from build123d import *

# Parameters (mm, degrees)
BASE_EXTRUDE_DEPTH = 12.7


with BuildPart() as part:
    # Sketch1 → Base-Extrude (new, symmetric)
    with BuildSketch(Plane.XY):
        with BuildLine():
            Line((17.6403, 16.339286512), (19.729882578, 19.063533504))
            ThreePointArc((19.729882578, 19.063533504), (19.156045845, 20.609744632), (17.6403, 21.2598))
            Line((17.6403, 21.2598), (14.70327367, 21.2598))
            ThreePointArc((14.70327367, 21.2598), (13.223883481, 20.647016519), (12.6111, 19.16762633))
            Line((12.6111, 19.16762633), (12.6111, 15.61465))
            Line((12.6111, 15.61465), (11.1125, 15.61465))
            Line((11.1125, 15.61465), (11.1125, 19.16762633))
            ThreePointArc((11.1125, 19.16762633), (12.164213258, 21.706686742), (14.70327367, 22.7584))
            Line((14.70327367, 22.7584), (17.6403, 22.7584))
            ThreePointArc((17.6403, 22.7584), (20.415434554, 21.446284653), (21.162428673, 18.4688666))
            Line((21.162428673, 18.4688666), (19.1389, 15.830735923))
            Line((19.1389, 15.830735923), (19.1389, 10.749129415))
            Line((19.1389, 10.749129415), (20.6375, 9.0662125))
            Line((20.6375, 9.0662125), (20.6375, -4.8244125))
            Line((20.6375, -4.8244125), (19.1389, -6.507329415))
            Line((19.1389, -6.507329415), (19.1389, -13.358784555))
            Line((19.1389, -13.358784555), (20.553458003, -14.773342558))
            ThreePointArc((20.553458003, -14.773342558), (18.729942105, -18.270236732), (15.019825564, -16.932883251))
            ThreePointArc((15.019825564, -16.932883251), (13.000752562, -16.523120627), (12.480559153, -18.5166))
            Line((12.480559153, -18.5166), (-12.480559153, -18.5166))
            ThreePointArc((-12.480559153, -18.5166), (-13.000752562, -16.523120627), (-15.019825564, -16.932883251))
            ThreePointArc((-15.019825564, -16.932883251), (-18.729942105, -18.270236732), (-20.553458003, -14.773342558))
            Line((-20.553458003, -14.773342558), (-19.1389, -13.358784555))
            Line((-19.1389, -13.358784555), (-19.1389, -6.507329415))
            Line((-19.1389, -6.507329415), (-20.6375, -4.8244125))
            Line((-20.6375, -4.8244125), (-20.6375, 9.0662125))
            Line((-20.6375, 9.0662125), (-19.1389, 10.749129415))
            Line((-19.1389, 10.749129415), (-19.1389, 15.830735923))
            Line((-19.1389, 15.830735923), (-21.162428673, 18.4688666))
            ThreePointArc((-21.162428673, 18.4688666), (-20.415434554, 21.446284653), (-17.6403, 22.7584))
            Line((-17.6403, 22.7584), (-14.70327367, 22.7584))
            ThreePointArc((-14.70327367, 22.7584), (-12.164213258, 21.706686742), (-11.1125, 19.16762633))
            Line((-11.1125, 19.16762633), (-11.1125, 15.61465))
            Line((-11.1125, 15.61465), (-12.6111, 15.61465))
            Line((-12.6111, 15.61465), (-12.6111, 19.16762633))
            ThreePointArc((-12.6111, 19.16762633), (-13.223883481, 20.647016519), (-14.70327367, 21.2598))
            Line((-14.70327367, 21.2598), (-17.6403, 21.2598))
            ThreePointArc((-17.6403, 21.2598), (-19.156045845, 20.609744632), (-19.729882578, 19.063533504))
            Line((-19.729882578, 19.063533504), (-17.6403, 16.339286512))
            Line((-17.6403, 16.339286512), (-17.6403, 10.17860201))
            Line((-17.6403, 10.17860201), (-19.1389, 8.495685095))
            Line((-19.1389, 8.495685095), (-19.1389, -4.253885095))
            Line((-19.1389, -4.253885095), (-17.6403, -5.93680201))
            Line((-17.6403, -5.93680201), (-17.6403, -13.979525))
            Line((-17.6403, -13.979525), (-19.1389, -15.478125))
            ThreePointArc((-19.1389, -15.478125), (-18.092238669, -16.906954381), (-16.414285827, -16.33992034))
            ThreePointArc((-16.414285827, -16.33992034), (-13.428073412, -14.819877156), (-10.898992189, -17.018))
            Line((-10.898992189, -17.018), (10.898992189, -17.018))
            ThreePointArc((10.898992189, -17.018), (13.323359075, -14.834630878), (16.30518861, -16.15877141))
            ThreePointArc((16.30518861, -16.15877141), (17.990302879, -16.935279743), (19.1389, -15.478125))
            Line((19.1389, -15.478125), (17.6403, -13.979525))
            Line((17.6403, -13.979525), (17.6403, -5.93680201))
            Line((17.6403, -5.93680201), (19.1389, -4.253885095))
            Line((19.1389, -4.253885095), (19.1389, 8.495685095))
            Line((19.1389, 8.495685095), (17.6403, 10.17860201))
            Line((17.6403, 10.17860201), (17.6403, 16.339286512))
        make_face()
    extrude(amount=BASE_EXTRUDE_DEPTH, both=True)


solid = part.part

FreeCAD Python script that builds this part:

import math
import FreeCAD as App
import Part
import Sketcher

V = App.Vector
Q = App.Units.Quantity

doc = App.newDocument("Part")
body = doc.addObject("PartDesign::Body", "Body")

# Sketch on XY plane
sketch1 = body.newObject("Sketcher::SketchObject", "Sketch")
sketch1.AttachmentSupport = (doc.getObject("XY_Plane"), [""])
sketch1.MapMode = "FlatFace"
sketch1.addGeometry(Part.LineSegment(V(19.7, 19.1, 0), V(17.6, 16.3, 0)), False)
sketch1.addGeometry(Part.LineSegment(V(17.6, 16.3, 0), V(17.6, 10.2, 0)), False)
sketch1.addGeometry(Part.LineSegment(V(17.6, 10.2, 0), V(19.1, 8.5, 0)), False)
sketch1.addGeometry(Part.LineSegment(V(19.1, 8.5, 0), V(19.1, -4.3, 0)), False)
sketch1.addGeometry(Part.LineSegment(V(19.1, -4.3, 0), V(17.6, -5.9, 0)), False)
sketch1.addGeometry(Part.LineSegment(V(17.6, -5.9, 0), V(17.6, -14, 0)), False)
sketch1.addGeometry(Part.LineSegment(V(17.6, -14, 0), V(19.1, -15.5, 0)), False)
sketch1.addGeometry(Part.ArcOfCircle(Part.Circle(V(17.6, -15.5, 0), V(0, 0, 1), 1.5), math.radians(-153), math.radians(0)), False)
sketch1.addGeometry(Part.ArcOfCircle(Part.Circle(V(13.8, -17.8, 0), V(0, 0, 1), 3), math.radians(33), math.radians(165)), False)
sketch1.addGeometry(Part.LineSegment(V(10.9, -17, 0), V(-10.9, -17, 0)), False)
sketch1.addGeometry(Part.ArcOfCircle(Part.Circle(V(-13.8, -17.8, 0), V(0, 0, 1), 3), math.radians(15), math.radians(151)), False)
sketch1.addGeometry(Part.ArcOfCircle(Part.Circle(V(-17.6, -15.5, 0), V(0, 0, 1), 1.5), math.radians(180), math.radians(325)), False)
sketch1.addGeometry(Part.LineSegment(V(-19.1, -15.5, 0), V(-17.6, -14, 0)), False)
sketch1.addGeometry(Part.LineSegment(V(-17.6, -14, 0), V(-17.6, -5.9, 0)), False)
sketch1.addGeometry(Part.LineSegment(V(-17.6, -5.9, 0), V(-19.1, -4.3, 0)), False)
sketch1.addGeometry(Part.LineSegment(V(-19.1, -4.3, 0), V(-19.1, 8.5, 0)), False)
sketch1.addGeometry(Part.LineSegment(V(-19.1, 8.5, 0), V(-17.6, 10.2, 0)), False)
sketch1.addGeometry(Part.LineSegment(V(-17.6, 10.2, 0), V(-17.6, 16.3, 0)), False)
sketch1.addGeometry(Part.LineSegment(V(-17.6, 16.3, 0), V(-19.7, 19.1, 0)), False)
sketch1.addGeometry(Part.ArcOfCircle(Part.Circle(V(-17.6, 19.2, 0), V(0, 0, 1), 2.1), math.radians(90), math.radians(183)), False)
sketch1.addGeometry(Part.LineSegment(V(-17.6, 21.3, 0), V(-14.7, 21.3, 0)), False)
sketch1.addGeometry(Part.ArcOfCircle(Part.Circle(V(-14.7, 19.2, 0), V(0, 0, 1), 2.1), math.radians(0), math.radians(90)), False)
sketch1.addGeometry(Part.LineSegment(V(-12.6, 19.2, 0), V(-12.6, 15.6, 0)), False)
sketch1.addGeometry(Part.LineSegment(V(-12.6, 15.6, 0), V(-11.1, 15.6, 0)), False)
sketch1.addGeometry(Part.LineSegment(V(-11.1, 15.6, 0), V(-11.1, 19.2, 0)), False)
sketch1.addGeometry(Part.ArcOfCircle(Part.Circle(V(-14.7, 19.2, 0), V(0, 0, 1), 3.6), math.radians(0), math.radians(90)), False)
sketch1.addGeometry(Part.LineSegment(V(-14.7, 22.8, 0), V(-17.6, 22.8, 0)), False)
sketch1.addGeometry(Part.ArcOfCircle(Part.Circle(V(-17.6, 19.2, 0), V(0, 0, 1), 3.6), math.radians(90), math.radians(191)), False)
sketch1.addGeometry(Part.LineSegment(V(-21.2, 18.5, 0), V(-19.1, 15.8, 0)), False)
sketch1.addGeometry(Part.LineSegment(V(-19.1, 15.8, 0), V(-19.1, 10.7, 0)), False)
sketch1.addGeometry(Part.LineSegment(V(-19.1, 10.7, 0), V(-20.6, 9.1, 0)), False)
sketch1.addGeometry(Part.LineSegment(V(-20.6, 9.1, 0), V(-20.6, -4.8, 0)), False)
sketch1.addGeometry(Part.LineSegment(V(-20.6, -4.8, 0), V(-19.1, -6.5, 0)), False)
sketch1.addGeometry(Part.LineSegment(V(-19.1, -6.5, 0), V(-19.1, -13.4, 0)), False)
sketch1.addGeometry(Part.LineSegment(V(-19.1, -13.4, 0), V(-20.6, -14.8, 0)), False)
sketch1.addGeometry(Part.ArcOfCircle(Part.Circle(V(-17.6, -15.5, 0), V(0, 0, 1), 3), math.radians(166), math.radians(331)), False)
sketch1.addGeometry(Part.ArcOfCircle(Part.Circle(V(-13.8, -17.8, 0), V(0, 0, 1), 1.5), math.radians(-29), math.radians(145)), False)
sketch1.addGeometry(Part.LineSegment(V(-12.5, -18.5, 0), V(12.5, -18.5, 0)), False)
sketch1.addGeometry(Part.ArcOfCircle(Part.Circle(V(13.8, -17.8, 0), V(0, 0, 1), 1.5), math.radians(35), math.radians(209)), False)
sketch1.addGeometry(Part.ArcOfCircle(Part.Circle(V(17.6, -15.5, 0), V(0, 0, 1), 3), math.radians(-151), math.radians(14)), False)
sketch1.addGeometry(Part.LineSegment(V(20.6, -14.8, 0), V(19.1, -13.4, 0)), False)
sketch1.addGeometry(Part.LineSegment(V(19.1, -13.4, 0), V(19.1, -6.5, 0)), False)
sketch1.addGeometry(Part.LineSegment(V(19.1, -6.5, 0), V(20.6, -4.8, 0)), False)
sketch1.addGeometry(Part.LineSegment(V(20.6, -4.8, 0), V(20.6, 9.1, 0)), False)
sketch1.addGeometry(Part.LineSegment(V(20.6, 9.1, 0), V(19.1, 10.7, 0)), False)
sketch1.addGeometry(Part.LineSegment(V(19.1, 10.7, 0), V(19.1, 15.8, 0)), False)
sketch1.addGeometry(Part.LineSegment(V(19.1, 15.8, 0), V(21.2, 18.5, 0)), False)
sketch1.addGeometry(Part.ArcOfCircle(Part.Circle(V(17.6, 19.2, 0), V(0, 0, 1), 3.6), math.radians(-11), math.radians(90)), False)
sketch1.addGeometry(Part.LineSegment(V(17.6, 22.8, 0), V(14.7, 22.8, 0)), False)
sketch1.addGeometry(Part.ArcOfCircle(Part.Circle(V(14.7, 19.2, 0), V(0, 0, 1), 3.6), math.radians(90), math.radians(180)), False)
sketch1.addGeometry(Part.LineSegment(V(11.1, 19.2, 0), V(11.1, 15.6, 0)), False)
sketch1.addGeometry(Part.LineSegment(V(11.1, 15.6, 0), V(12.6, 15.6, 0)), False)
sketch1.addGeometry(Part.LineSegment(V(12.6, 15.6, 0), V(12.6, 19.2, 0)), False)
sketch1.addGeometry(Part.ArcOfCircle(Part.Circle(V(14.7, 19.2, 0), V(0, 0, 1), 2.1), math.radians(90), math.radians(180)), False)
sketch1.addGeometry(Part.LineSegment(V(14.7, 21.3, 0), V(17.6, 21.3, 0)), False)
sketch1.addGeometry(Part.ArcOfCircle(Part.Circle(V(17.6, 19.2, 0), V(0, 0, 1), 2.1), math.radians(-3), math.radians(90)), False)
sketch1.addConstraint(Sketcher.Constraint("Coincident", 0, 2, 1, 1))
sketch1.addConstraint(Sketcher.Constraint("Coincident", 1, 2, 2, 1))
sketch1.addConstraint(Sketcher.Constraint("Coincident", 2, 2, 3, 1))
sketch1.addConstraint(Sketcher.Constraint("Coincident", 3, 2, 4, 1))
sketch1.addConstraint(Sketcher.Constraint("Coincident", 4, 2, 5, 1))
sketch1.addConstraint(Sketcher.Constraint("Coincident", 5, 2, 6, 1))
sketch1.addConstraint(Sketcher.Constraint("Coincident", 6, 2, 7, 2))
sketch1.addConstraint(Sketcher.Constraint("Coincident", 7, 1, 8, 1))
sketch1.addConstraint(Sketcher.Constraint("Coincident", 8, 2, 9, 1))
sketch1.addConstraint(Sketcher.Constraint("Coincident", 9, 2, 10, 1))
sketch1.addConstraint(Sketcher.Constraint("Coincident", 10, 2, 11, 2))
sketch1.addConstraint(Sketcher.Constraint("Coincident", 11, 1, 12, 1))
sketch1.addConstraint(Sketcher.Constraint("Coincident", 12, 2, 13, 1))
sketch1.addConstraint(Sketcher.Constraint("Coincident", 13, 2, 14, 1))
sketch1.addConstraint(Sketcher.Constraint("Coincident", 14, 2, 15, 1))
sketch1.addConstraint(Sketcher.Constraint("Coincident", 15, 2, 16, 1))
sketch1.addConstraint(Sketcher.Constraint("Coincident", 16, 2, 17, 1))
sketch1.addConstraint(Sketcher.Constraint("Coincident", 17, 2, 18, 1))
sketch1.addConstraint(Sketcher.Constraint("Coincident", 18, 2, 19, 2))
sketch1.addConstraint(Sketcher.Constraint("Tangent", 19, 1, 20, 1))
sketch1.addConstraint(Sketcher.Constraint("Tangent", 20, 2, 21, 2))
sketch1.addConstraint(Sketcher.Constraint("Tangent", 21, 1, 22, 1))
sketch1.addConstraint(Sketcher.Constraint("Coincident", 22, 2, 23, 1))
sketch1.addConstraint(Sketcher.Constraint("Coincident", 23, 2, 24, 1))
sketch1.addConstraint(Sketcher.Constraint("Tangent", 24, 2, 25, 1))
sketch1.addConstraint(Sketcher.Constraint("Tangent", 25, 2, 26, 1))
sketch1.addConstraint(Sketcher.Constraint("Tangent", 26, 2, 27, 1))
sketch1.addConstraint(Sketcher.Constraint("Coincident", 27, 2, 28, 1))
sketch1.addConstraint(Sketcher.Constraint("Coincident", 28, 2, 29, 1))
sketch1.addConstraint(Sketcher.Constraint("Coincident", 29, 2, 30, 1))
sketch1.addConstraint(Sketcher.Constraint("Coincident", 30, 2, 31, 1))
sketch1.addConstraint(Sketcher.Constraint("Coincident", 31, 2, 32, 1))
sketch1.addConstraint(Sketcher.Constraint("Coincident", 32, 2, 33, 1))
sketch1.addConstraint(Sketcher.Constraint("Coincident", 33, 2, 34, 1))
sketch1.addConstraint(Sketcher.Constraint("Coincident", 34, 2, 35, 1))
sketch1.addConstraint(Sketcher.Constraint("Coincident", 35, 2, 36, 2))
sketch1.addConstraint(Sketcher.Constraint("Coincident", 36, 1, 37, 1))
sketch1.addConstraint(Sketcher.Constraint("Coincident", 37, 2, 38, 2))
sketch1.addConstraint(Sketcher.Constraint("Coincident", 38, 1, 39, 1))
sketch1.addConstraint(Sketcher.Constraint("Coincident", 39, 2, 40, 1))
sketch1.addConstraint(Sketcher.Constraint("Coincident", 40, 2, 41, 1))
sketch1.addConstraint(Sketcher.Constraint("Coincident", 41, 2, 42, 1))
sketch1.addConstraint(Sketcher.Constraint("Coincident", 42, 2, 43, 1))
sketch1.addConstraint(Sketcher.Constraint("Coincident", 43, 2, 44, 1))
sketch1.addConstraint(Sketcher.Constraint("Coincident", 44, 2, 45, 1))
sketch1.addConstraint(Sketcher.Constraint("Coincident", 45, 2, 46, 1))
sketch1.addConstraint(Sketcher.Constraint("Coincident", 46, 2, 47, 1))
sketch1.addConstraint(Sketcher.Constraint("Tangent", 47, 2, 48, 1))
sketch1.addConstraint(Sketcher.Constraint("Tangent", 48, 2, 49, 1))
sketch1.addConstraint(Sketcher.Constraint("Tangent", 49, 2, 50, 1))
sketch1.addConstraint(Sketcher.Constraint("Coincident", 50, 2, 51, 1))
sketch1.addConstraint(Sketcher.Constraint("Coincident", 51, 2, 52, 1))
sketch1.addConstraint(Sketcher.Constraint("Tangent", 52, 2, 53, 2))
sketch1.addConstraint(Sketcher.Constraint("Tangent", 53, 1, 54, 1))
sketch1.addConstraint(Sketcher.Constraint("Tangent", 54, 2, 55, 2))
sketch1.addConstraint(Sketcher.Constraint("Coincident", 55, 1, 0, 1))
sketch1.addConstraint(Sketcher.Constraint("Vertical", 1))
sketch1.addConstraint(Sketcher.Constraint("Vertical", 3))
sketch1.addConstraint(Sketcher.Constraint("Vertical", 5))
sketch1.addConstraint(Sketcher.Constraint("Horizontal", 9))
sketch1.addConstraint(Sketcher.Constraint("Vertical", 13))
sketch1.addConstraint(Sketcher.Constraint("Vertical", 15))
sketch1.addConstraint(Sketcher.Constraint("Vertical", 17))
sketch1.addConstraint(Sketcher.Constraint("Horizontal", 20))
sketch1.addConstraint(Sketcher.Constraint("Vertical", 22))
sketch1.addConstraint(Sketcher.Constraint("Horizontal", 23))
sketch1.addConstraint(Sketcher.Constraint("Vertical", 24))
sketch1.addConstraint(Sketcher.Constraint("Horizontal", 26))
sketch1.addConstraint(Sketcher.Constraint("Vertical", 29))
sketch1.addConstraint(Sketcher.Constraint("Vertical", 31))
sketch1.addConstraint(Sketcher.Constraint("Vertical", 33))
sketch1.addConstraint(Sketcher.Constraint("Horizontal", 37))
sketch1.addConstraint(Sketcher.Constraint("Vertical", 41))
sketch1.addConstraint(Sketcher.Constraint("Vertical", 43))
sketch1.addConstraint(Sketcher.Constraint("Vertical", 45))
sketch1.addConstraint(Sketcher.Constraint("Horizontal", 48))
sketch1.addConstraint(Sketcher.Constraint("Vertical", 50))
sketch1.addConstraint(Sketcher.Constraint("Horizontal", 51))
sketch1.addConstraint(Sketcher.Constraint("Vertical", 52))
sketch1.addConstraint(Sketcher.Constraint("Horizontal", 54))
sketch1.addConstraint(Sketcher.Constraint("Coincident", 25, 3, 21, 3))
sketch1.addConstraint(Sketcher.Constraint("Coincident", 27, 3, 19, 3))
sketch1.addConstraint(Sketcher.Constraint("Coincident", 35, 3, 11, 3))
sketch1.addConstraint(Sketcher.Constraint("Coincident", 36, 3, 10, 3))
sketch1.addConstraint(Sketcher.Constraint("Coincident", 38, 3, 8, 3))
sketch1.addConstraint(Sketcher.Constraint("Coincident", 39, 3, 7, 3))
sketch1.addConstraint(Sketcher.Constraint("Coincident", 53, 3, 49, 3))
sketch1.addConstraint(Sketcher.Constraint("Coincident", 55, 3, 47, 3))
sketch1.addConstraint(Sketcher.Constraint("Equal", 8, 10))
sketch1.addConstraint(Sketcher.Constraint("Equal", 7, 11))
sketch1.addConstraint(Sketcher.Constraint("Equal", 19, 21))
sketch1.addConstraint(Sketcher.Constraint("Equal", 10, 35))
sketch1.addConstraint(Sketcher.Constraint("Equal", 11, 36))
sketch1.addConstraint(Sketcher.Constraint("Equal", 36, 38))
sketch1.addConstraint(Sketcher.Constraint("Equal", 35, 39))
sketch1.addConstraint(Sketcher.Constraint("Equal", 27, 47))
sketch1.addConstraint(Sketcher.Constraint("Equal", 47, 49))
sketch1.addConstraint(Sketcher.Constraint("Equal", 21, 53))
sketch1.addConstraint(Sketcher.Constraint("Symmetric", 8, 3, 10, 3, -2))
sketch1.addConstraint(Sketcher.Constraint("Symmetric", 7, 3, 11, 3, -2))
sketch1.addConstraint(Sketcher.Constraint("Symmetric", 19, 3, 47, 3, -2))
sketch1.addConstraint(Sketcher.Constraint("Symmetric", 5, 2, 12, 2, -2))
sketch1.addConstraint(Sketcher.Constraint("Symmetric", 3, 2, 14, 2, -2))
sketch1.addConstraint(Sketcher.Constraint("Symmetric", 1, 2, 16, 2, -2))
sketch1.addConstraint(Sketcher.Constraint("Symmetric", 33, 2, 40, 2, -2))
sketch1.addConstraint(Sketcher.Constraint("Symmetric", 31, 2, 42, 2, -2))
sketch1.addConstraint(Sketcher.Constraint("Symmetric", 29, 2, 44, 2, -2))
sketch1.addConstraint(Sketcher.Constraint("Symmetric", 23, 2, 50, 2, -2))
sketch1.addConstraint(Sketcher.Constraint("Perpendicular", 6, 12))
sketch1.addConstraint(Sketcher.Constraint("Parallel", 2, 14))
sketch1.addConstraint(Sketcher.Constraint("Parallel", 4, 16))
sketch1.addConstraint(Sketcher.Constraint("Parallel", 18, 28))
sketch1.addConstraint(Sketcher.Constraint("Parallel", 16, 30))
sketch1.addConstraint(Sketcher.Constraint("Parallel", 14, 32))
sketch1.addConstraint(Sketcher.Constraint("Parallel", 12, 34))
sketch1.addConstraint(Sketcher.Constraint("Perpendicular", 34, 40))
sketch1.addConstraint(Sketcher.Constraint("Parallel", 30, 42))
sketch1.addConstraint(Sketcher.Constraint("Parallel", 32, 44))
sketch1.addConstraint(Sketcher.Constraint("Parallel", 0, 46))
sketch1.addConstraint(Sketcher.Constraint("Horizontal", 39, 3, 6, 2))
sketch1.addConstraint(Sketcher.Constraint("Horizontal", 6, 2, 11, 1))
sketch1.addConstraint(Sketcher.Constraint("Horizontal", 4, 2, 13, 2))
sketch1.addConstraint(Sketcher.Constraint("Horizontal", 0, 2, 17, 2))
sketch1.addConstraint(Sketcher.Constraint("Horizontal", 28, 2, 45, 2))
sketch1.addConstraint(Sketcher.Constraint("Horizontal", 27, 2, 46, 2))
sketch1.addConstraint(Sketcher.Constraint("Vertical", 11, 3, 19, 3))
sketch1.addConstraint(Sketcher.Constraint("Vertical", 55, 3, 0, 2))
sketch1.addConstraint(Sketcher.Constraint("Vertical", 1, 2, 4, 2))
sketch1.addConstraint(Sketcher.Constraint("Vertical", 3, 2, 6, 2))
sketch1.addConstraint(Sketcher.Constraint("Vertical", 15, 2, 28, 2))
sketch1.addConstraint(Sketcher.Constraint("Vertical", 29, 2, 32, 2))
sketch1.addConstraint(Sketcher.Constraint("Equal", 16, 30))
sketch1.addConstraint(Sketcher.Constraint("Radius", 7, Q("0.059 in")))
sketch1.addConstraint(Sketcher.Constraint("Radius", 8, Q("0.118 in")))
sketch1.addConstraint(Sketcher.Constraint("DistanceX", 23, 1, 23, 2, Q("0.059 in")))
sketch1.addConstraint(Sketcher.Constraint("DistanceY", 31, 2, 31, 1, Q("0.546875 in")))
sketch1.addConstraint(Sketcher.Constraint("DistanceY", 8, 2, -1, 1, Q("0.67 in")))
sketch1.addConstraint(Sketcher.Constraint("DistanceY", 7, 3, -1, 1, Q("0.609375 in")))
sketch1.addConstraint(Sketcher.Constraint("DistanceY", -1, 1, 19, 1, Q("0.837 in")))
sketch1.addConstraint(Sketcher.Constraint("DistanceX", 23, 2, -1, 1, Q("0.4375 in")))
sketch1.addConstraint(Sketcher.Constraint("DistanceX", 30, 2, -1, 1, Q("0.8125 in")))
sketch1.addConstraint(Sketcher.Constraint("DistanceY", 36, 1, -1, 1, Q("0.729 in")))
sketch1.addConstraint(Sketcher.Constraint("Radius", 19, 2.092174))
sketch1.addConstraint(Sketcher.Constraint("DistanceX", 37, 1, 37, 2, 24.961118))
sketch1.addConstraint(Sketcher.Constraint("DistanceY", 3, 2, 3, 1, 12.74957))
sketch1.addConstraint(Sketcher.Constraint("DistanceX", 9, 2, 9, 1, 21.797984))
sketch1.addConstraint(Sketcher.Constraint("DistanceY", 1, 2, 1, 1, 6.160685))
sketch1.addConstraint(Sketcher.Constraint("DistanceY", 5, 2, 5, 1, 8.042723))
sketch1.addConstraint(Sketcher.Constraint("DistanceY", 22, 2, 22, 1, 3.552976))
sketch1.addConstraint(Sketcher.Constraint("DistanceY", 29, 2, 29, 1, 5.081607))
sketch1.addConstraint(Sketcher.Constraint("DistanceY", 33, 2, 33, 1, 6.851455))
sketch1.addConstraint(Sketcher.Constraint("DistanceX", 27, 2, -1, 1, 21.162429))
sketch1.addConstraint(Sketcher.Constraint("DistanceY", -1, 1, 29, 2, 10.749129))
sketch1.addConstraint(Sketcher.Constraint("DistanceY", 32, 2, -1, 1, 6.507329))
pad1 = body.newObject("PartDesign::Pad", "Pad")
pad1.Profile = sketch1
pad1.Length = Q("1 in")
pad1.Midplane = True

doc.recompute()
